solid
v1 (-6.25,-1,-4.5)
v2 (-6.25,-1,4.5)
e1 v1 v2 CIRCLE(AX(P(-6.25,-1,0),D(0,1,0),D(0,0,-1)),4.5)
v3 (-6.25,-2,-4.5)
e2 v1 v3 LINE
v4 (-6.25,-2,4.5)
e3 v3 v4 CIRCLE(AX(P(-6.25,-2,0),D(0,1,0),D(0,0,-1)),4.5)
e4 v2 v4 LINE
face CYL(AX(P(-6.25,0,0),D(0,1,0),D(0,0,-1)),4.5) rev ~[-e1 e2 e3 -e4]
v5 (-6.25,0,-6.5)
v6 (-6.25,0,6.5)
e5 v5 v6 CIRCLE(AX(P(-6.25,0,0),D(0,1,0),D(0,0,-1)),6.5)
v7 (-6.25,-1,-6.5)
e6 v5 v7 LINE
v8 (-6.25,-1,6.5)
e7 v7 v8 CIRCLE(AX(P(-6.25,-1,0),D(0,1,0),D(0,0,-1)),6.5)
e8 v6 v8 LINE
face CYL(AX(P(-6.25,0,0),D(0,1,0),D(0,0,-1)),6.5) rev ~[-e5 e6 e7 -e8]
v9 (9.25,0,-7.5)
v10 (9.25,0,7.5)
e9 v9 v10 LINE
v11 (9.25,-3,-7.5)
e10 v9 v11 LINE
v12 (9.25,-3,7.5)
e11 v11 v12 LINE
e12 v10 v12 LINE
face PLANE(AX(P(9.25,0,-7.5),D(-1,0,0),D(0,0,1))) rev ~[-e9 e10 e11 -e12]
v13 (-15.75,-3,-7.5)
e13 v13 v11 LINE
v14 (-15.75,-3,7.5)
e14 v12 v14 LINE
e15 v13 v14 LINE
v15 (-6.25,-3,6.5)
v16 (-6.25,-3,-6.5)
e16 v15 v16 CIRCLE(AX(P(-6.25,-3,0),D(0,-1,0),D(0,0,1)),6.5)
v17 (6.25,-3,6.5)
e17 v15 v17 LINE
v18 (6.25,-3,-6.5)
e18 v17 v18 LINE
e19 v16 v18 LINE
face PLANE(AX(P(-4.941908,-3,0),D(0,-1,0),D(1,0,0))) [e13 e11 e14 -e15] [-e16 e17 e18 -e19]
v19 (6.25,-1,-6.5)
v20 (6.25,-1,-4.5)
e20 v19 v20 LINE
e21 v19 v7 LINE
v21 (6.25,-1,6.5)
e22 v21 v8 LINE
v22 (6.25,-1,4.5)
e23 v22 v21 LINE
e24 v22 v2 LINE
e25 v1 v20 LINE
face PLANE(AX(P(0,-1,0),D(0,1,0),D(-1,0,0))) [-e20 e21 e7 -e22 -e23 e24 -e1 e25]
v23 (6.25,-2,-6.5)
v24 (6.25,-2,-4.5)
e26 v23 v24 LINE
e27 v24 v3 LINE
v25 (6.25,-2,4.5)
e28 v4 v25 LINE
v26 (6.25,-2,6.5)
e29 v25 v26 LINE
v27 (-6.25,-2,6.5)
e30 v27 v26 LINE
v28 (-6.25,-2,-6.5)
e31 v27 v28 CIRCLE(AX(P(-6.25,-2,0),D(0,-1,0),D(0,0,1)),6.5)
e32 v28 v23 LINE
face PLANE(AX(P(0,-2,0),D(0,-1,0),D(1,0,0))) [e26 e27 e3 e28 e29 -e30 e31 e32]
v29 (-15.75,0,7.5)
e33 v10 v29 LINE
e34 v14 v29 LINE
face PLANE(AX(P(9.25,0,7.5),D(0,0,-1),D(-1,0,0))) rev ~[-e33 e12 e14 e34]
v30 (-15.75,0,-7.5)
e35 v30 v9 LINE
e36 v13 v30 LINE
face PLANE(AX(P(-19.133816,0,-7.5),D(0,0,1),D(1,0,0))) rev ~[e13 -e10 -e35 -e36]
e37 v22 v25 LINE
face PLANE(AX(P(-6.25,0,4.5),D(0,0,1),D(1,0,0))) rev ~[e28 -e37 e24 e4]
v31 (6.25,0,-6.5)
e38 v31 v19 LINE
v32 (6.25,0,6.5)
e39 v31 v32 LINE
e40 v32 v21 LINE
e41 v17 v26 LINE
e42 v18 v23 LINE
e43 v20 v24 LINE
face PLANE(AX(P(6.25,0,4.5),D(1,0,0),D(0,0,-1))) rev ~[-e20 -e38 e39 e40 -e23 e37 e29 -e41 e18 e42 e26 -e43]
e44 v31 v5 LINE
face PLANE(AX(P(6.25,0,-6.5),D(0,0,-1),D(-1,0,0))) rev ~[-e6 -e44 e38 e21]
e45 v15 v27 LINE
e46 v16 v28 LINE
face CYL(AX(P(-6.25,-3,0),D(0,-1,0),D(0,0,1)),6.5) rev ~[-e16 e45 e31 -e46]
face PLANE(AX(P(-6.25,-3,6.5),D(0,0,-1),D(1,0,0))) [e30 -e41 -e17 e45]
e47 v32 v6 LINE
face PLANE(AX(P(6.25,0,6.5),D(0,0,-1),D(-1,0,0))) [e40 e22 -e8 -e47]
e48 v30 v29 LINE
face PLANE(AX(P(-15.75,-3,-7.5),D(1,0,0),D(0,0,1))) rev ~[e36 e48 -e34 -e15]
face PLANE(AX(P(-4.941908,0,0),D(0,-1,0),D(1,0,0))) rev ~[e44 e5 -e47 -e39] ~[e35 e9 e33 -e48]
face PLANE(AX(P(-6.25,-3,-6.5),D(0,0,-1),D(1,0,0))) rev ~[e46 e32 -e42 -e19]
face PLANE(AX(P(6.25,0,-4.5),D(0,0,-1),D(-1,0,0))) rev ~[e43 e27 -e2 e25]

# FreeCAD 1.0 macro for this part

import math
import FreeCAD as App
import Part
import Sketcher

V = App.Vector
Q = App.Units.Quantity

doc = App.newDocument("Part")
body = doc.addObject("PartDesign::Body", "Body")

# Sketch on XZ plane
sketch1 = body.newObject("Sketcher::SketchObject", "Sketch")
sketch1.AttachmentSupport = (doc.getObject("XZ_Plane"), [""])
sketch1.MapMode = "FlatFace"
sketch1.addGeometry(Part.LineSegment(V(9.25, -7.5, 0), V(9.25, 7.5, 0)), False)
sketch1.addGeometry(Part.LineSegment(V(9.25, 7.5, 0), V(-19.133816, 7.5, 0)), False)
sketch1.addGeometry(Part.LineSegment(V(-19.133816, 7.5, 0), V(-19.133816, -7.5, 0)), False)
sketch1.addGeometry(Part.LineSegment(V(-19.133816, -7.5, 0), V(9.25, -7.5, 0)), False)
sketch1.addGeometry(Part.ArcOfCircle(Part.Circle(V(-6.25, 0, 0), V(0, 0, 1), 4.5), math.radians(90), math.radians(270)), False)
sketch1.addGeometry(Part.LineSegment(V(-6.25, 4.5, 0), V(6.25, 4.5, 0)), False)
sketch1.addGeometry(Part.LineSegment(V(6.25, 4.5, 0), V(6.25, -4.5, 0)), False)
sketch1.addGeometry(Part.LineSegment(V(6.25, -4.5, 0), V(-6.25, -4.5, 0)), False)
sketch1.addConstraint(Sketcher.Constraint("Coincident", 0, 2, 1, 1))
sketch1.addConstraint(Sketcher.Constraint("Coincident", 1, 2, 2, 1))
sketch1.addConstraint(Sketcher.Constraint("Coincident", 2, 2, 3, 1))
sketch1.addConstraint(Sketcher.Constraint("Coincident", 3, 2, 0, 1))
sketch1.addConstraint(Sketcher.Constraint("Tangent", 4, 1, 5, 1))
sketch1.addConstraint(Sketcher.Constraint("Coincident", 5, 2, 6, 1))
sketch1.addConstraint(Sketcher.Constraint("Coincident", 6, 2, 7, 1))
sketch1.addConstraint(Sketcher.Constraint("Tangent", 7, 2, 4, 2))
sketch1.addConstraint(Sketcher.Constraint("Vertical", 0))
sketch1.addConstraint(Sketcher.Constraint("Horizontal", 1))
sketch1.addConstraint(Sketcher.Constraint("Vertical", 2))
sketch1.addConstraint(Sketcher.Constraint("Horizontal", 3))
sketch1.addConstraint(Sketcher.Constraint("Horizontal", 5))
sketch1.addConstraint(Sketcher.Constraint("Vertical", 6))
sketch1.addConstraint(Sketcher.Constraint("Horizontal", 7))
sketch1.addConstraint(Sketcher.Constraint("Symmetric", 4, 1, 6, 2, -1, 1))
sketch1.addConstraint(Sketcher.Constraint("Radius", 4, Q("4.5 mm")))
sketch1.addConstraint(Sketcher.Constraint("DistanceY", 0, 1, 0, 2, Q("15 mm")))
sketch1.addConstraint(Sketcher.Constraint("DistanceX", 5, 1, 5, 2, Q("12.5 mm")))
sketch1.addConstraint(Sketcher.Constraint("DistanceY", 4, 1, 1, 2, Q("3 mm")))
sketch1.addConstraint(Sketcher.Constraint("DistanceX", 5, 2, 0, 2, Q("3 mm")))
sketch1.addConstraint(Sketcher.Constraint("DistanceX", 1, 2, 1, 1, Q("28.383816 mm")))
pad1 = body.newObject("PartDesign::Pad", "Pad")
pad1.Profile = sketch1
pad1.Length = 3

# Sketch on XZ plane
sketch2 = body.newObject("Sketcher::SketchObject", "Sketch001")
sketch2.AttachmentSupport = (doc.getObject("XZ_Plane"), [""])
sketch2.MapMode = "FlatFace"
sketch2.AttachmentOffset = App.Placement(V(0, 0, 3), App.Rotation())
sketch2.addGeometry(Part.LineSegment(V(-6.25, -6.5, 0), V(6.25, -6.5, 0)), False)
sketch2.addGeometry(Part.LineSegment(V(6.25, -6.5, 0), V(6.25, 6.5, 0)), False)
sketch2.addGeometry(Part.LineSegment(V(6.25, 6.5, 0), V(-6.25, 6.5, 0)), False)
sketch2.addGeometry(Part.ArcOfCircle(Part.Circle(V(-6.25, 0, 0), V(0, 0, 1), 6.5), math.radians(90), math.radians(270)), False)
sketch2.addConstraint(Sketcher.Constraint("Coincident", 0, 2, 1, 1))
sketch2.addConstraint(Sketcher.Constraint("Coincident", 1, 2, 2, 1))
sketch2.addConstraint(Sketcher.Constraint("Tangent", 2, 2, 3, 1))
sketch2.addConstraint(Sketcher.Constraint("Tangent", 3, 2, 0, 1))
sketch2.addConstraint(Sketcher.Constraint("Horizontal", 0))
sketch2.addConstraint(Sketcher.Constraint("Vertical", 1))
sketch2.addConstraint(Sketcher.Constraint("Horizontal", 2))
sketch2.addConstraint(Sketcher.Constraint("Symmetric", 0, 2, 2, 2, -1, 1))
sketch2.addConstraint(Sketcher.Constraint("Radius", 3, Q("6.5 mm")))
sketch2.addConstraint(Sketcher.Constraint("DistanceX", 0, 1, 0, 2, Q("12.5 mm")))
pocket1 = body.newObject("PartDesign::Pocket", "Pocket")
pocket1.Profile = sketch2
pocket1.Length = 1

# Sketch on XZ plane
sketch3 = body.newObject("Sketcher::SketchObject", "Sketch002")
sketch3.AttachmentSupport = (doc.getObject("XZ_Plane"), [""])
sketch3.MapMode = "FlatFace"
sketch3.addGeometry(Part.LineSegment(V(6.25, 6.5, 0), V(6.25, -6.5, 0)), False)
sketch3.addGeometry(Part.LineSegment(V(6.25, -6.5, 0), V(-6.25, -6.5, 0)), False)
sketch3.addGeometry(Part.ArcOfCircle(Part.Circle(V(-6.25, 0, 0), V(0, 0, 1), 6.5), math.radians(90), math.radians(270)), False)
sketch3.addGeometry(Part.LineSegment(V(-6.25, 6.5, 0), V(6.25, 6.5, 0)), False)
sketch3.addConstraint(Sketcher.Constraint("Coincident", 0, 2, 1, 1))
sketch3.addConstraint(Sketcher.Constraint("Tangent", 1, 2, 2, 2))
sketch3.addConstraint(Sketcher.Constraint("Tangent", 2, 1, 3, 1))
sketch3.addConstraint(Sketcher.Constraint("Coincident", 3, 2, 0, 1))
sketch3.addConstraint(Sketcher.Constraint("Vertical", 0))
sketch3.addConstraint(Sketcher.Constraint("Horizontal", 1))
sketch3.addConstraint(Sketcher.Constraint("Horizontal", 3))
sketch3.addConstraint(Sketcher.Constraint("Symmetric", 0, 2, 2, 1, -1, 1))
sketch3.addConstraint(Sketcher.Constraint("Radius", 2, Q("6.5 mm")))
sketch3.addConstraint(Sketcher.Constraint("DistanceX", 1, 2, 1, 1, Q("12.5 mm")))
pocket2 = body.newObject("PartDesign::Pocket", "Pocket001")
pocket2.Profile = sketch3
pocket2.Length = 1
pocket2.Reversed = True

# Sketch on XZ plane
sketch4 = body.newObject("Sketcher::SketchObject", "Sketch003")
sketch4.AttachmentSupport = (doc.getObject("XZ_Plane"), [""])
sketch4.MapMode = "FlatFace"
sketch4.AttachmentOffset = App.Placement(V(0, 0, 3), App.Rotation())
sketch4.addGeometry(Part.LineSegment(V(-19.133816, 7.5, 0), V(-19.133816, -7.5, 0)), False)
sketch4.addGeometry(Part.LineSegment(V(-19.133816, -7.5, 0), V(-15.75, -7.5, 0)), False)
sketch4.addGeometry(Part.LineSegment(V(-15.75, -7.5, 0), V(-15.75, 7.5, 0)), False)
sketch4.addGeometry(Part.LineSegment(V(-15.75, 7.5, 0), V(-19.133816, 7.5, 0)), False)
sketch4.addConstraint(Sketcher.Constraint("Coincident", 0, 2, 1, 1))
sketch4.addConstraint(Sketcher.Constraint("Coincident", 1, 2, 2, 1))
sketch4.addConstraint(Sketcher.Constraint("Coincident", 2, 2, 3, 1))
sketch4.addConstraint(Sketcher.Constraint("Coincident", 3, 2, 0, 1))
sketch4.addConstraint(Sketcher.Constraint("Vertical", 0))
sketch4.addConstraint(Sketcher.Constraint("Horizontal", 1))
sketch4.addConstraint(Sketcher.Constraint("Vertical", 2))
sketch4.addConstraint(Sketcher.Constraint("Horizontal", 3))
sketch4.addConstraint(Sketcher.Constraint("DistanceY", 0, 2, 0, 1, Q("15 mm")))
sketch4.addConstraint(Sketcher.Constraint("DistanceY", 0, 2, -1, 1, Q("7.5 mm")))
sketch4.addConstraint(Sketcher.Constraint("DistanceX", 1, 2, -1, 1, Q("15.75 mm")))
sketch4.addConstraint(Sketcher.Constraint("DistanceX", 1, 1, 1, 2, Q("3.383816 mm")))
pocket3 = body.newObject("PartDesign::Pocket", "Pocket002")
pocket3.Profile = sketch4
pocket3.Length = 25

doc.recompute()
